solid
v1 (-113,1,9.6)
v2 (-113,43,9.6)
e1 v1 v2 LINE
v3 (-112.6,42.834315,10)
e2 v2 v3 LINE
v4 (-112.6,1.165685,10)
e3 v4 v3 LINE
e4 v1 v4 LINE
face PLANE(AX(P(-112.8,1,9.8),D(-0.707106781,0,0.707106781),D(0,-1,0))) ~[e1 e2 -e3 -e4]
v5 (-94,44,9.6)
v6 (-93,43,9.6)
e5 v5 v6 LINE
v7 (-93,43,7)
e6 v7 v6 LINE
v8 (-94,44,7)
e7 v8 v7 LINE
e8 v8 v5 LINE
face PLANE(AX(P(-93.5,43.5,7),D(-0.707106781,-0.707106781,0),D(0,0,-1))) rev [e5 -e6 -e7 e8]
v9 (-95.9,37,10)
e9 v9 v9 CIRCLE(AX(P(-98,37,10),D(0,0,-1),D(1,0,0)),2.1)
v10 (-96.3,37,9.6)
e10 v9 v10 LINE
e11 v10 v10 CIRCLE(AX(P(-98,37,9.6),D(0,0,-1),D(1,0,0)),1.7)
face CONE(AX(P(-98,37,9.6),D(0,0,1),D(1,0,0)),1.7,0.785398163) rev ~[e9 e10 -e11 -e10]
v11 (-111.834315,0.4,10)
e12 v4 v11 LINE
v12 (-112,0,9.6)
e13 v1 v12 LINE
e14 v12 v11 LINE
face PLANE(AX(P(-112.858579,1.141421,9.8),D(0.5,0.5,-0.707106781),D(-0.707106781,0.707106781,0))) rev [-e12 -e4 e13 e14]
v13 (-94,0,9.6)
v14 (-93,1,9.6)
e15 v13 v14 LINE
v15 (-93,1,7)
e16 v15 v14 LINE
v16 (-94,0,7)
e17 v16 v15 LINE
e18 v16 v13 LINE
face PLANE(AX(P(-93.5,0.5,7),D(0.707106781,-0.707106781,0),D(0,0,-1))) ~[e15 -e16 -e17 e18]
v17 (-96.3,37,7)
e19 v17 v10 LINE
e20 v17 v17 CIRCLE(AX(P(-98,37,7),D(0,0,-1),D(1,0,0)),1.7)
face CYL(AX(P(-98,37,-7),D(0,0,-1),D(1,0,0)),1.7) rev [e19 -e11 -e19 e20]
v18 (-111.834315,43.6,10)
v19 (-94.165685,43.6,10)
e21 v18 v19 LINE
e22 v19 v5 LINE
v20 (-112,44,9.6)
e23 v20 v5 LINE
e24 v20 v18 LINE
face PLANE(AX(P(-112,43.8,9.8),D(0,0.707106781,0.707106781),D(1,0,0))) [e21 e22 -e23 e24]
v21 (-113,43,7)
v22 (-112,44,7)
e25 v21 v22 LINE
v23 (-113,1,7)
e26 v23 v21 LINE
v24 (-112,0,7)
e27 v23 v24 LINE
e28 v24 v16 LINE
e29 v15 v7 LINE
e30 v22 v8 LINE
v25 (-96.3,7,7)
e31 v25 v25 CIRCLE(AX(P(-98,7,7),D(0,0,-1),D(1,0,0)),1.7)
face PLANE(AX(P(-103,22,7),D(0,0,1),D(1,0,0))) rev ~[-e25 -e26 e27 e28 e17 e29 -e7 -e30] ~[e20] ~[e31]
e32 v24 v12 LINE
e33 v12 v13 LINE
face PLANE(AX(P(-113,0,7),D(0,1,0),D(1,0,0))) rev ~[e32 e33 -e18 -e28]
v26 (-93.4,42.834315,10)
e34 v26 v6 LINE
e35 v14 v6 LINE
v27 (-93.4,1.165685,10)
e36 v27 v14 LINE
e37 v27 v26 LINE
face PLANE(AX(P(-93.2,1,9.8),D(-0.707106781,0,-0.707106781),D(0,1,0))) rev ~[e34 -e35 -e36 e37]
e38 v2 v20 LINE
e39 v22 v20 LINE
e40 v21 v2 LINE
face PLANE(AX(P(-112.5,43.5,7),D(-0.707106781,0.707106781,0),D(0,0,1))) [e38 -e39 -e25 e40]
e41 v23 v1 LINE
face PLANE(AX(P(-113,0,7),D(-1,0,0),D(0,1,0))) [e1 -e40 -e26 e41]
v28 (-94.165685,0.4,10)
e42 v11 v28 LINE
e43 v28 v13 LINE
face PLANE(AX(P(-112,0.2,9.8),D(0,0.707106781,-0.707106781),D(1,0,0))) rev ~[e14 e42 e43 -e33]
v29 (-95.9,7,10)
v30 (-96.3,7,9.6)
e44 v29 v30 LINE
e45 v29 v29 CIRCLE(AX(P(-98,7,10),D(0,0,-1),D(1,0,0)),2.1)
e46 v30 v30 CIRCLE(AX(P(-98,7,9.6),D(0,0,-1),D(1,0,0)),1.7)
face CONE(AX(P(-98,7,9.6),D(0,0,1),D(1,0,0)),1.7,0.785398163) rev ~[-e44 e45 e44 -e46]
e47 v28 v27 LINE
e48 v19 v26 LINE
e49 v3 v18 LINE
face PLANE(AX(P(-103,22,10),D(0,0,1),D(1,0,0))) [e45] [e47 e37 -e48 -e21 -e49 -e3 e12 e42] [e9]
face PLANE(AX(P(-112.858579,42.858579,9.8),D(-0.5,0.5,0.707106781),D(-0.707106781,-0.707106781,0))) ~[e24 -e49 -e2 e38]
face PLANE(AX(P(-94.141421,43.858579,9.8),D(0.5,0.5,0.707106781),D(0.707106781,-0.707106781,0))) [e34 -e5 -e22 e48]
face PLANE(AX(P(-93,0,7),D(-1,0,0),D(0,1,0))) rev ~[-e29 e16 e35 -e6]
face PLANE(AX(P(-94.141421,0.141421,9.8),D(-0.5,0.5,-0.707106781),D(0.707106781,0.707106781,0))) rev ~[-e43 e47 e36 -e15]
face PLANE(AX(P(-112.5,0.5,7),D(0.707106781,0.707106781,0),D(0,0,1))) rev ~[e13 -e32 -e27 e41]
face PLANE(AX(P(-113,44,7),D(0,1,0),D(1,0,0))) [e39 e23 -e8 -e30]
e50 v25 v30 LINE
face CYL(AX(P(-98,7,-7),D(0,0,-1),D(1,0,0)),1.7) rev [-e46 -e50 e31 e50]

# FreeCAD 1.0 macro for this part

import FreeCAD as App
import Part
import Sketcher
Q = App.Units.Quantity


def edges_at(feature, points):
    """Names of the edges that pass closest to the given points."""
    edges = feature.Shape.Edges
    near = lambda p: min(range(len(edges)), key=lambda i: edges[i].distToShape(Part.Vertex(*p))[0])
    return sorted({f"Edge{near(p) + 1}" for p in points})


def add_polygon(sketch, points):
    """Adds a closed chain of lines whose ends are joined by coincident constraints."""
    first, n = sketch.GeometryCount, len(points)
    for a, b in zip(points, points[1:] + points[:1]):
        sketch.addGeometry(Part.LineSegment(App.Vector(*a, 0), App.Vector(*b, 0)), False)
    for i in range(n):
        sketch.addConstraint(Sketcher.Constraint("Coincident", first + i, 2, first + (i + 1) % n, 1))

doc = App.newDocument("Part")
body = doc.addObject("PartDesign::Body", "Body")

sketch1 = body.newObject("Sketcher::SketchObject", "Sketch")
sketch1.AttachmentSupport = (doc.getObject("XY_Plane"), [""])
sketch1.MapMode = "FlatFace"
sketch1.AttachmentOffset = App.Placement(App.Vector(0, 0, -7), App.Rotation())
sketch1.addGeometry(Part.Circle(App.Vector(-98, 37, 0), App.Vector(0, 0, 1), 1.7), False)
sketch1.addConstraint([
    Sketcher.Constraint("Diameter", 0, Q("3.4 mm")),
    Sketcher.Constraint("DistanceX", 0, 3, -1, 1, Q("98 mm")),
    Sketcher.Constraint("DistanceY", -1, 1, 0, 3, Q("37 mm")),
])
pad1 = body.newObject("PartDesign::Pad", "Pad")
pad1.Profile = sketch1
pad1.Length = 30
body2 = doc.addObject("PartDesign::Body", "Body001")
body2.AllowCompound = True

sketch2 = body2.newObject("Sketcher::SketchObject", "Sketch001")
sketch2.AttachmentSupport = (doc.getObject("XY_Plane001"), [""])
sketch2.MapMode = "FlatFace"
sketch2.AttachmentOffset = App.Placement(App.Vector(0, 0, -7), App.Rotation())
sketch2.addGeometry(Part.Circle(App.Vector(-98, 7, 0), App.Vector(0, 0, 1), 1.7), False)
sketch2.addConstraint([
    Sketcher.Constraint("Diameter", 0, Q("3.4 mm")),
    Sketcher.Constraint("DistanceX", 0, 3, -1, 1, Q("98 mm")),
    Sketcher.Constraint("DistanceY", -1, 1, 0, 3, Q("7 mm")),
])
pad2 = body2.newObject("PartDesign::Pad", "Pad001")
pad2.Profile = sketch2
pad2.Length = 30
doc.recompute()

boolean = body2.newObject("PartDesign::Boolean", "Boolean")
boolean.Type = "Fuse"
boolean.addObjects([body])
body3 = doc.addObject("PartDesign::Body", "Body002")

sketch3 = body3.newObject("Sketcher::SketchObject", "Sketch002")
sketch3.AttachmentSupport = (doc.getObject("XY_Plane002"), [""])
sketch3.MapMode = "FlatFace"
sketch3.AttachmentOffset = App.Placement(App.Vector(0, 0, 7), App.Rotation())
add_polygon(sketch3, [(-113, 44), (-113, 0), (-93, 0), (-93, 44)])
sketch3.addConstraint([
    Sketcher.Constraint("Vertical", 0),
    Sketcher.Constraint("Horizontal", 1),
    Sketcher.Constraint("Vertical", 2),
    Sketcher.Constraint("Horizontal", 3),
    Sketcher.Constraint("PointOnObject", 0, 2, -1),
    Sketcher.Constraint("DistanceX", 1, 1, 1, 2, Q("20 mm")),
    Sketcher.Constraint("DistanceY", 0, 2, 0, 1, Q("44 mm")),
    Sketcher.Constraint("DistanceX", 0, 2, -1, 1, Q("113 mm")),
])
pad3 = body3.newObject("PartDesign::Pad", "Pad002")
pad3.Profile = sketch3
pad3.Length = 3
doc.recompute()

boolean2 = body3.newObject("PartDesign::Boolean", "Boolean001")
boolean2.Type = "Cut"
boolean2.addObjects([body2])
doc.recompute()

chamfer = body3.newObject("PartDesign::Chamfer", "Chamfer")
chamfer.Base = (boolean2, edges_at(boolean2, [
    (-113, 0, 8.5),
    (-113, 44, 8.5),
    (-93, 0, 8.5),
    (-93, 44, 8.5),
]))
chamfer.Size = 1
doc.recompute()

chamfer2 = body3.newObject("PartDesign::Chamfer", "Chamfer001")
chamfer2.Base = (chamfer, edges_at(chamfer, [
    (-113, 22, 10),
    (-112.5, 0.5, 10),
    (-112.5, 43.5, 10),
    (-103, 0, 10),
    (-103, 44, 10),
    (-93.5, 0.5, 10),
    (-93.5, 43.5, 10),
    (-93, 22, 10),
    (-99.7, 7, 10),
    (-99.7, 37, 10),
]))
chamfer2.Size = 0.4

doc.recompute()
